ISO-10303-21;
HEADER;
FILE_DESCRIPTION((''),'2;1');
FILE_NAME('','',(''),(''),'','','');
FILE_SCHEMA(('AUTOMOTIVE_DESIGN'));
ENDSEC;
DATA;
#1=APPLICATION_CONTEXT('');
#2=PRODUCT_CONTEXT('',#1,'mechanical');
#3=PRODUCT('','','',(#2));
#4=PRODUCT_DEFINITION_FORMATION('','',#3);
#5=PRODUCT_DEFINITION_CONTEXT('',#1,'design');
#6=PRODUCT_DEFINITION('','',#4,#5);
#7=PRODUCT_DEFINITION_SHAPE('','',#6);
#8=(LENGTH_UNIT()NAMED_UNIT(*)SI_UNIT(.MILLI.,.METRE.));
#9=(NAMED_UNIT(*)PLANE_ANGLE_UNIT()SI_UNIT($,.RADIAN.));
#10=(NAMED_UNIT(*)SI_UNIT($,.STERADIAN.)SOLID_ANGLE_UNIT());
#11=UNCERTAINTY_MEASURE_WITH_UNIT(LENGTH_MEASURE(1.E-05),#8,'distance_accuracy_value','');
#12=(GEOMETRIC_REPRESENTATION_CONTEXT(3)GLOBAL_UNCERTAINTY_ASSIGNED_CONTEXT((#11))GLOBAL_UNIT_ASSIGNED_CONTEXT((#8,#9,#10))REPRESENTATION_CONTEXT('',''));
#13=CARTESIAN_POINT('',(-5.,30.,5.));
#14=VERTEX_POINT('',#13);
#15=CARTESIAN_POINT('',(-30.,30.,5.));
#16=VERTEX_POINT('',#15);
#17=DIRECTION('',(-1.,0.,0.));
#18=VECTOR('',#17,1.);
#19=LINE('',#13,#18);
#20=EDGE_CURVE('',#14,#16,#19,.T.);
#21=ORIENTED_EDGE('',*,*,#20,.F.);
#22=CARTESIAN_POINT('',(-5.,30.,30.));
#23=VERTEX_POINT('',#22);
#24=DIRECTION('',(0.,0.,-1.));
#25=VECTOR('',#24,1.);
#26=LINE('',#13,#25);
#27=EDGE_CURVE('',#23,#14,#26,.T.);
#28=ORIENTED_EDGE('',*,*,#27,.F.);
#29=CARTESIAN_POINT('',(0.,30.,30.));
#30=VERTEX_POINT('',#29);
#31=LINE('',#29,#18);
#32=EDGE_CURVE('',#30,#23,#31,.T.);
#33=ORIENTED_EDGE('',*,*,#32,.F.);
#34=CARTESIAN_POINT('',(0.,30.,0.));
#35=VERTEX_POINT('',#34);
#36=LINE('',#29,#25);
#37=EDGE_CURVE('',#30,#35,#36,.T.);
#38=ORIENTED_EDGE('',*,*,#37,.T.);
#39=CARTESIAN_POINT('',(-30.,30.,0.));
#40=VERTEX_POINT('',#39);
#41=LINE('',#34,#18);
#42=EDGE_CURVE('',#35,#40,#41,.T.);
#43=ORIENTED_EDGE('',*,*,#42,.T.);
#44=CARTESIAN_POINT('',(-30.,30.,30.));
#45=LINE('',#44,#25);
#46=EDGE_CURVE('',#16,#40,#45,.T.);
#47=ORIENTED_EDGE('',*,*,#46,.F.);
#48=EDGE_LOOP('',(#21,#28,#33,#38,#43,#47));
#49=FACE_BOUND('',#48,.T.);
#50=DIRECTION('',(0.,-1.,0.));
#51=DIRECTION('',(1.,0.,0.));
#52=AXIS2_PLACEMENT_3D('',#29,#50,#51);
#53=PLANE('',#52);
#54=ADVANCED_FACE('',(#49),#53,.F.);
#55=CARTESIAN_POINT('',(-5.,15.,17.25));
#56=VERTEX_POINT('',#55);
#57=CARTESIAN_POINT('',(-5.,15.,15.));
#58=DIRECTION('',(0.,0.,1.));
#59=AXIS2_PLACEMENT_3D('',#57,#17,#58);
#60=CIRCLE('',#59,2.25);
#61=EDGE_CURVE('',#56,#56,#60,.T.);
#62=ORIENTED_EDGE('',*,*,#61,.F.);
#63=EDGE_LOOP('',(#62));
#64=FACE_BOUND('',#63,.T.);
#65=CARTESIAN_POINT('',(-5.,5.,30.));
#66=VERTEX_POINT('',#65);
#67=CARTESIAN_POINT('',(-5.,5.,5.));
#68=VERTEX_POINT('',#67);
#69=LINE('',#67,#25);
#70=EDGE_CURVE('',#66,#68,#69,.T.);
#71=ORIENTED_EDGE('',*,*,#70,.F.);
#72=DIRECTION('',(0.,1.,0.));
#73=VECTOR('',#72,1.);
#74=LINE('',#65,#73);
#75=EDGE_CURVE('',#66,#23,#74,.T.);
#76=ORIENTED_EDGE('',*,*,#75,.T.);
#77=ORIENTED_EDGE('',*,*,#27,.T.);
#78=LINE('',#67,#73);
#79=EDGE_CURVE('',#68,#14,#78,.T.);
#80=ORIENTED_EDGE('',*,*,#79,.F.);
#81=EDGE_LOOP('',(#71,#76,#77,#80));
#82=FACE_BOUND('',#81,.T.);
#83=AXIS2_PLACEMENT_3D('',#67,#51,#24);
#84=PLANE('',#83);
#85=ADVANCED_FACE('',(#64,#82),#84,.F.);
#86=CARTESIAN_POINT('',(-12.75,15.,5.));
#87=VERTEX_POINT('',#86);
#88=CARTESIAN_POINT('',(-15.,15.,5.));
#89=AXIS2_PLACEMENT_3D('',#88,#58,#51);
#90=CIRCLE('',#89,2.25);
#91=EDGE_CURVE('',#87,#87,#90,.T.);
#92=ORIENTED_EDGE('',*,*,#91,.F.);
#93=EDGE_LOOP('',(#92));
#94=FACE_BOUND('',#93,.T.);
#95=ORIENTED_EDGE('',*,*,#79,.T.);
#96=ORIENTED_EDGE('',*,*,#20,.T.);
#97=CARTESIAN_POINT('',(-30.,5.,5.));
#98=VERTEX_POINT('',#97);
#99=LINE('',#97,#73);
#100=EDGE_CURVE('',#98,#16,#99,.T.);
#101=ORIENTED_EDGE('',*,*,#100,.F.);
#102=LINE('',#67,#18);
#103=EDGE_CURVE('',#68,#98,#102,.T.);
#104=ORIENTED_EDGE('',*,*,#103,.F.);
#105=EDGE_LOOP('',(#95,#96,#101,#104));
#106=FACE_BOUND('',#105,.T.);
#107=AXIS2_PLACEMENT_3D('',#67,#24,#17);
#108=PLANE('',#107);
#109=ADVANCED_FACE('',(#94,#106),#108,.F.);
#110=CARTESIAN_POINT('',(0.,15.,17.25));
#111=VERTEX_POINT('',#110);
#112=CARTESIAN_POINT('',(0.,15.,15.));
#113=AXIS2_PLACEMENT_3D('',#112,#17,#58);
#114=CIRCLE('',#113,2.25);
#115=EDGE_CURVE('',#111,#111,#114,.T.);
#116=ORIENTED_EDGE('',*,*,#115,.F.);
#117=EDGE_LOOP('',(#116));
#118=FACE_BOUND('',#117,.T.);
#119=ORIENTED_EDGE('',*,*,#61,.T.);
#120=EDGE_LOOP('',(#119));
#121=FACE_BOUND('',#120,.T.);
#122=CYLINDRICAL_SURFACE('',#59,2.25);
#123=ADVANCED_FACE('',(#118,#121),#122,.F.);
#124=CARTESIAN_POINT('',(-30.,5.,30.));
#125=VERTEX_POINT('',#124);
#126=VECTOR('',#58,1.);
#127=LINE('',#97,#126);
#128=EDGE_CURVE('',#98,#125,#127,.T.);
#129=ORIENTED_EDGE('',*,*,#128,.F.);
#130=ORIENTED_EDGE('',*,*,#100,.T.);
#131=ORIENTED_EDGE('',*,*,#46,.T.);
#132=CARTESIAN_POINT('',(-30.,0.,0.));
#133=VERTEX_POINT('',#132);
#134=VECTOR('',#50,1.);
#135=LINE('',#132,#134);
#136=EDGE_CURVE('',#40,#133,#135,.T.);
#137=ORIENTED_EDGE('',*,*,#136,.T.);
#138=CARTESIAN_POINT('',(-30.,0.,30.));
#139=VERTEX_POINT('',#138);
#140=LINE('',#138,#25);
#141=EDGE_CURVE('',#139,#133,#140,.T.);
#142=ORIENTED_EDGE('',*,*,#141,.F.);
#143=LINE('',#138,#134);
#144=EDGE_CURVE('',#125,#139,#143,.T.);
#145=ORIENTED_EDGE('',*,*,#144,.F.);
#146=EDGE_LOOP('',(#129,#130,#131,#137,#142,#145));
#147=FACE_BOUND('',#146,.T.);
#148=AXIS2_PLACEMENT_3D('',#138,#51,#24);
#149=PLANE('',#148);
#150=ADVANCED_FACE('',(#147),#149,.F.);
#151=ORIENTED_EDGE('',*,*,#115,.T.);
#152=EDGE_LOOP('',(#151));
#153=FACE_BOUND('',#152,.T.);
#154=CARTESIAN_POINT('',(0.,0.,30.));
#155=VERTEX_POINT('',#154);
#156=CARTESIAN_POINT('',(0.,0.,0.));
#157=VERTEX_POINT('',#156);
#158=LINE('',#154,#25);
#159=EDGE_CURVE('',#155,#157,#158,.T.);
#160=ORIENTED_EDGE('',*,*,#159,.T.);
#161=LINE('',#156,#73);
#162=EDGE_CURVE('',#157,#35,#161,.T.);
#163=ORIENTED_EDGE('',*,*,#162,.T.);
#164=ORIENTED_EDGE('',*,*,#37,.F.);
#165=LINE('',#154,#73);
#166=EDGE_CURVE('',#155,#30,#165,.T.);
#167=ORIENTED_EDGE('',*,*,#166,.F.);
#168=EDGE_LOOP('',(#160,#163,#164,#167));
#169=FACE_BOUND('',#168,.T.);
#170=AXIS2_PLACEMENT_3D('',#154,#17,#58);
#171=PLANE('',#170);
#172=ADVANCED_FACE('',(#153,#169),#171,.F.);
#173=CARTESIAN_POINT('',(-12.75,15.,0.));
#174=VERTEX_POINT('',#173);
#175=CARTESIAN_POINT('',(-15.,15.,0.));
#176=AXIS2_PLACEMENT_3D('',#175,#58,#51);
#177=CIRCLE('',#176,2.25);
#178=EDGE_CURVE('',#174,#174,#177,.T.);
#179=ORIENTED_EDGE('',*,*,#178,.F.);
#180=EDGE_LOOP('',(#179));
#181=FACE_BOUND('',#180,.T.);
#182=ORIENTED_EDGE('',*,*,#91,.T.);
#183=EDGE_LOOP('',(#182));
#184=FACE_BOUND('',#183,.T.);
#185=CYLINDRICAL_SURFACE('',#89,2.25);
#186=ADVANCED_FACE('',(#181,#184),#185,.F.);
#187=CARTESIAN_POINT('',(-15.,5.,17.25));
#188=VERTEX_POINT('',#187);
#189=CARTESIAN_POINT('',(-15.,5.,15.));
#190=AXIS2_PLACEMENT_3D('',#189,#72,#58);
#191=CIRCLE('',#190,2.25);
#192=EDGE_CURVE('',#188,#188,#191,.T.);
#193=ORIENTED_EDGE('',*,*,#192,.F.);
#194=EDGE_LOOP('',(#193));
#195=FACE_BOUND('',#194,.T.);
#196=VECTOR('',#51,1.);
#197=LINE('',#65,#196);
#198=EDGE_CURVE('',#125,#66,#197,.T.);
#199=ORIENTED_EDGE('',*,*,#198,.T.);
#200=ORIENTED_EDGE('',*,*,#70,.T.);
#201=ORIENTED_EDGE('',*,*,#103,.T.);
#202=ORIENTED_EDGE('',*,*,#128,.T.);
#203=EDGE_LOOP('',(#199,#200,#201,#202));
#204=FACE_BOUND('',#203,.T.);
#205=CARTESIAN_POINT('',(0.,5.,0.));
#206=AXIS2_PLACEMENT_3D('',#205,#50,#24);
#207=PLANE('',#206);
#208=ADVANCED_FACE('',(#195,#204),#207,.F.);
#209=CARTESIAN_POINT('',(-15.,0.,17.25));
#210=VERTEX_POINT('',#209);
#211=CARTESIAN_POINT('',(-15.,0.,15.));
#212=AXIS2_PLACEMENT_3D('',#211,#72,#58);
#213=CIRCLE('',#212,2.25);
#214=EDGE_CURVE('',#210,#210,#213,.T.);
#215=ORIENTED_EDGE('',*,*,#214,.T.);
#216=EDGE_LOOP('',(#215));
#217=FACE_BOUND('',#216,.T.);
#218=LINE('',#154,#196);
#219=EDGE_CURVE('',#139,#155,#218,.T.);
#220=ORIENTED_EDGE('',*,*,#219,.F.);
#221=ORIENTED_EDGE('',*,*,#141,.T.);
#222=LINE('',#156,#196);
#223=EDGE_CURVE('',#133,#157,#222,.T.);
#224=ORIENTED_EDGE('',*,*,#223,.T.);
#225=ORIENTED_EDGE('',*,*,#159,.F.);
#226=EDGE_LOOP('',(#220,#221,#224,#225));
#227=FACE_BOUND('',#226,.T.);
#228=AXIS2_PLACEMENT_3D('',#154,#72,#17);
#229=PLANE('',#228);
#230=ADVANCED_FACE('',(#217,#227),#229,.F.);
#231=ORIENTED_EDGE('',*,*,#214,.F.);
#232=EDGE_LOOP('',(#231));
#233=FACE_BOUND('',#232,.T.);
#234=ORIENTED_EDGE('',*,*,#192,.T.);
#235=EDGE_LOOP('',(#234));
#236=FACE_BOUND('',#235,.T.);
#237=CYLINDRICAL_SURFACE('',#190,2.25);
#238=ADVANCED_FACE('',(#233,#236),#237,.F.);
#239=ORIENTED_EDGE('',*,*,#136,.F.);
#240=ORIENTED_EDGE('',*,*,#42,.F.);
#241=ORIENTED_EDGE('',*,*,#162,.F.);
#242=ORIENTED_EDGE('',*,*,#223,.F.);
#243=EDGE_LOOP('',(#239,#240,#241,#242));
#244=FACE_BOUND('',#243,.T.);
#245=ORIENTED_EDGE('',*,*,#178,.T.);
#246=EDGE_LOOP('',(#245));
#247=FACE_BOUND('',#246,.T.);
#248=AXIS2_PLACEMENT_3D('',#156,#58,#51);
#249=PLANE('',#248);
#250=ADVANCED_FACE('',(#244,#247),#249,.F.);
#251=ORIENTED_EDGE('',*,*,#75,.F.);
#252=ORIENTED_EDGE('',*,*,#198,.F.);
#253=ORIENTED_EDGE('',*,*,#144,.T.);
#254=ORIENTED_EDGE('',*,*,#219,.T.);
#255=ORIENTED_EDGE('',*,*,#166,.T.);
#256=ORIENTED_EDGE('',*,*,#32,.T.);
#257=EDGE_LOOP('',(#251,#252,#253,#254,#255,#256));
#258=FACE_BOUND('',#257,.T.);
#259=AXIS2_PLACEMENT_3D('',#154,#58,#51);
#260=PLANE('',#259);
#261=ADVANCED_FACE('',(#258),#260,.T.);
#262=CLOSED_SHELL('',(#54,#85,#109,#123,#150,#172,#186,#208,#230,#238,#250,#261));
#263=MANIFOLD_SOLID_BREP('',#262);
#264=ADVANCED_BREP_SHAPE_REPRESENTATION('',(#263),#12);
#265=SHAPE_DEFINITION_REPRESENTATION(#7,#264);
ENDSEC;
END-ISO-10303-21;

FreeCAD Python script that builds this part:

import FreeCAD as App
import Part
import Sketcher
from FreeCAD import Vector
Q = App.Units.Quantity

doc = App.newDocument("Part")
body = doc.addObject("PartDesign::Body", "Body")

# Sketch on XY plane
sketch1 = doc.addObject("Sketcher::SketchObject", "Sketch")
body.addObject(sketch1)
sketch1.AttachmentSupport = (doc.XY_Plane, [""])
sketch1.MapMode = "FlatFace"
sketch1.addGeometry([
    Part.LineSegment(Vector(-30, 30, 0), Vector(-30, 0, 0)),
    Part.LineSegment(Vector(-30, 0, 0), Vector(0, 0, 0)),
    Part.LineSegment(Vector(0, 0, 0), Vector(0, 30, 0)),
    Part.LineSegment(Vector(0, 30, 0), Vector(-30, 30, 0)),
], False)
sketch1.addConstraint([
    Sketcher.Constraint("Coincident", 0, 2, 1, 1),
    Sketcher.Constraint("Coincident", 1, 2, 2, 1),
    Sketcher.Constraint("Coincident", 2, 2, 3, 1),
    Sketcher.Constraint("Coincident", 3, 2, 0, 1),
    Sketcher.Constraint("Vertical", 0),
    Sketcher.Constraint("Horizontal", 1),
    Sketcher.Constraint("Vertical", 2),
    Sketcher.Constraint("Horizontal", 3),
    Sketcher.Constraint("Coincident", 1, 2, -1, 1),
    Sketcher.Constraint("Equal", 3, 0),
    Sketcher.Constraint("DistanceX", 1, 1, 1, 2, Q("30 mm")),
])
pad1 = doc.addObject("PartDesign::Pad", "Pad")
body.addObject(pad1)
pad1.Profile = sketch1
pad1.Length = 30

# Sketch on XZ plane
sketch2 = doc.addObject("Sketcher::SketchObject", "Sketch001")
body.addObject(sketch2)
sketch2.AttachmentSupport = (doc.XZ_Plane, [""])
sketch2.MapMode = "FlatFace"
sketch2.AttachmentOffset = App.Placement(Vector(0, 0, -30), App.Rotation())
sketch2.addGeometry([
    Part.LineSegment(Vector(-30, 5, 0), Vector(-30, 30, 0)),
    Part.LineSegment(Vector(-30, 30, 0), Vector(-5, 30, 0)),
    Part.LineSegment(Vector(-5, 30, 0), Vector(-5, 5, 0)),
    Part.LineSegment(Vector(-5, 5, 0), Vector(-30, 5, 0)),
], False)
sketch2.addConstraint([
    Sketcher.Constraint("Coincident", 0, 2, 1, 1),
    Sketcher.Constraint("Coincident", 1, 2, 2, 1),
    Sketcher.Constraint("Coincident", 2, 2, 3, 1),
    Sketcher.Constraint("Coincident", 3, 2, 0, 1),
    Sketcher.Constraint("Vertical", 0),
    Sketcher.Constraint("Horizontal", 1),
    Sketcher.Constraint("Vertical", 2),
    Sketcher.Constraint("Horizontal", 3),
    Sketcher.Constraint("Equal", 3, 0),
    Sketcher.Constraint("DistanceX", 1, 1, 1, 2, Q("25 mm")),
    Sketcher.Constraint("DistanceX", 0, 2, -1, 1, Q("30 mm")),
    Sketcher.Constraint("DistanceY", -1, 1, 0, 2, Q("30 mm")),
])
pocket1 = doc.addObject("PartDesign::Pocket", "Pocket")
body.addObject(pocket1)
pocket1.Profile = sketch2
pocket1.Length = 25
pocket1.Reversed = True

# Sketch on YZ plane
sketch3 = doc.addObject("Sketcher::SketchObject", "Sketch002")
body.addObject(sketch3)
sketch3.AttachmentSupport = (doc.YZ_Plane, [""])
sketch3.MapMode = "FlatFace"
sketch3.AttachmentOffset = App.Placement(Vector(0, 0, -5), App.Rotation())
sketch3.addGeometry(Part.Circle(Vector(15, 15, 0), Vector(0, 0, 1), 2.2), False)
sketch3.addConstraint([
    Sketcher.Constraint("Diameter", 0, Q("4.5 mm")),
    Sketcher.Constraint("DistanceX", -1, 1, 0, 3, Q("15 mm")),
    Sketcher.Constraint("DistanceY", -1, 1, 0, 3, Q("15 mm")),
])
doc.recompute()
hole = doc.addObject("PartDesign::Hole", "Hole")
body.addObject(hole)
hole.Profile = sketch3
hole.ThreadType = "None"
hole.Diameter = 4.5
hole.DepthType = "ThroughAll"
hole.Reversed = True

# Sketch on XY plane
sketch4 = doc.addObject("Sketcher::SketchObject", "Sketch003")
body.addObject(sketch4)
sketch4.AttachmentSupport = (doc.XY_Plane, [""])
sketch4.MapMode = "FlatFace"
sketch4.AttachmentOffset = App.Placement(Vector(0, 0, 5), App.Rotation())
sketch4.addGeometry(Part.Circle(Vector(-15, 15, 0), Vector(0, 0, 1), 2.2), False)
sketch4.addConstraint([
    Sketcher.Constraint("Diameter", 0, Q("4.5 mm")),
    Sketcher.Constraint("DistanceX", 0, 3, -1, 1, Q("15 mm")),
    Sketcher.Constraint("DistanceY", -1, 1, 0, 3, Q("15 mm")),
])
doc.recompute()
hole2 = doc.addObject("PartDesign::Hole", "Hole001")
body.addObject(hole2)
hole2.Profile = sketch4
hole2.ThreadType = "None"
hole2.Diameter = 4.5
hole2.DepthType = "ThroughAll"

# Sketch on XZ plane
sketch5 = doc.addObject("Sketcher::SketchObject", "Sketch004")
body.addObject(sketch5)
sketch5.AttachmentSupport = (doc.XZ_Plane, [""])
sketch5.MapMode = "FlatFace"
sketch5.AttachmentOffset = App.Placement(Vector(0, 0, -5), App.Rotation())
sketch5.addGeometry(Part.Circle(Vector(-15, 15, 0), Vector(0, 0, 1), 2.2), False)
sketch5.addConstraint([
    Sketcher.Constraint("Diameter", 0, Q("4.5 mm")),
    Sketcher.Constraint("DistanceX", 0, 3, -1, 1, Q("15 mm")),
    Sketcher.Constraint("DistanceY", -1, 1, 0, 3, Q("15 mm")),
])
doc.recompute()
hole3 = doc.addObject("PartDesign::Hole", "Hole002")
body.addObject(hole3)
hole3.Profile = sketch5
hole3.ThreadType = "None"
hole3.Diameter = 4.5
hole3.DepthType = "ThroughAll"
hole3.Reversed = True

doc.recompute()
